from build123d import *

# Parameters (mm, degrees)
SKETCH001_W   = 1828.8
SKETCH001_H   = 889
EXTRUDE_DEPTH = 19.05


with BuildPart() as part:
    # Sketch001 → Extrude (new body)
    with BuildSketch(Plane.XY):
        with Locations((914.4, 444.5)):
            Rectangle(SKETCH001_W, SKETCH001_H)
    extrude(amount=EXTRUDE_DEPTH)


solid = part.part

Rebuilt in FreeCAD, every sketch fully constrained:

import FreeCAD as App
import Part
import Sketcher
from FreeCAD import Vector
Q = App.Units.Quantity

doc = App.newDocument("Part")
body = doc.addObject("PartDesign::Body", "Body")

# Sketch on XY plane
sketch1 = body.newObject("Sketcher::SketchObject", "Sketch")
sketch1.AttachmentSupport = (doc.getObject("XY_Plane"), [""])
sketch1.MapMode = "FlatFace"
sketch1.addGeometry([
    Part.LineSegment(Vector(0, 889, 0), Vector(0, 0, 0)),
    Part.LineSegment(Vector(0, 0, 0), Vector(1829, 0, 0)),
    Part.LineSegment(Vector(1829, 0, 0), Vector(1829, 889, 0)),
    Part.LineSegment(Vector(1829, 889, 0), Vector(0, 889, 0)),
], False)
sketch1.addConstraint([
    Sketcher.Constraint("Coincident", 0, 2, 1, 1),
    Sketcher.Constraint("Coincident", 1, 2, 2, 1),
    Sketcher.Constraint("Coincident", 2, 2, 3, 1),
    Sketcher.Constraint("Coincident", 3, 2, 0, 1),
    Sketcher.Constraint("Vertical", 0),
    Sketcher.Constraint("Horizontal", 1),
    Sketcher.Constraint("Vertical", 2),
    Sketcher.Constraint("Horizontal", 3),
    Sketcher.Constraint("Coincident", 0, 2, -1, 1),
    Sketcher.Constraint("DistanceX", 1, 1, 1, 2, Q("72 in")),
    Sketcher.Constraint("DistanceY", 0, 2, 0, 1, Q("35 in")),
])
pad1 = body.newObject("PartDesign::Pad", "Pad")
pad1.Profile = sketch1
pad1.Length = Q("0.75 in")

doc.recompute()
